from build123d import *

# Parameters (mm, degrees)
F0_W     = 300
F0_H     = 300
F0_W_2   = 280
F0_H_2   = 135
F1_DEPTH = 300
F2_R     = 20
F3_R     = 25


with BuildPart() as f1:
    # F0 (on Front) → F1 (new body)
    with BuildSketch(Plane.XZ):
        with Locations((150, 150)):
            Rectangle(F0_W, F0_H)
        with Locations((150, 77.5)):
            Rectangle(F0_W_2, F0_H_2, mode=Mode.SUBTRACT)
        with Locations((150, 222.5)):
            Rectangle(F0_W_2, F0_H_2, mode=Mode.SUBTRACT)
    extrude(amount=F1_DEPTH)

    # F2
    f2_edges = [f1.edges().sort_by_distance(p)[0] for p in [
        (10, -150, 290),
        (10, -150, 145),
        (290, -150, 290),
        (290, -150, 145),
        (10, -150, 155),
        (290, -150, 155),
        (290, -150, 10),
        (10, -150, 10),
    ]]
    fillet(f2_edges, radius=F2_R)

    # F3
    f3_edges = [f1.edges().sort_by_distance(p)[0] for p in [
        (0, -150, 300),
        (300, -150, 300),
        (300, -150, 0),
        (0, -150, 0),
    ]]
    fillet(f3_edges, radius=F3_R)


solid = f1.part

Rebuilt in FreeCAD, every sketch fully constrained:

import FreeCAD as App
import Part
import Sketcher


def edges_at(feature, points):
    """Names of the edges that pass closest to the given points."""
    edges = feature.Shape.Edges
    near = lambda p: min(range(len(edges)), key=lambda i: edges[i].distToShape(Part.Vertex(*p))[0])
    return sorted({f"Edge{near(p) + 1}" for p in points})

doc = App.newDocument("Part")
body = doc.addObject("PartDesign::Body", "Body")

# Sketch on XZ plane
sketch1 = doc.addObject("Sketcher::SketchObject", "Sketch")
body.addObject(sketch1)
sketch1.AttachmentSupport = (doc.XZ_Plane, [""])
sketch1.MapMode = "FlatFace"
sketch1.addGeometry([
    Part.LineSegment(App.Vector(0, 300, 0), App.Vector(0, 0, 0)),  # 0
    Part.LineSegment(App.Vector(0, 0, 0), App.Vector(300, 0, 0)),  # 1
    Part.LineSegment(App.Vector(300, 0, 0), App.Vector(300, 300, 0)),  # 2
    Part.LineSegment(App.Vector(300, 300, 0), App.Vector(0, 300, 0)),  # 3
    Part.LineSegment(App.Vector(290, 10, 0), App.Vector(10, 10, 0)),  # 4
    Part.LineSegment(App.Vector(10, 10, 0), App.Vector(10, 145, 0)),  # 5
    Part.LineSegment(App.Vector(10, 145, 0), App.Vector(290, 145, 0)),  # 6
    Part.LineSegment(App.Vector(290, 145, 0), App.Vector(290, 10, 0)),  # 7
    Part.LineSegment(App.Vector(290, 155, 0), App.Vector(10, 155, 0)),  # 8
    Part.LineSegment(App.Vector(10, 155, 0), App.Vector(10, 290, 0)),  # 9
    Part.LineSegment(App.Vector(10, 290, 0), App.Vector(290, 290, 0)),  # 10
    Part.LineSegment(App.Vector(290, 290, 0), App.Vector(290, 155, 0)),  # 11
], False)
sketch1.addConstraint([
    Sketcher.Constraint("Coincident", 0, 2, 1, 1),
    Sketcher.Constraint("Coincident", 1, 2, 2, 1),
    Sketcher.Constraint("Coincident", 2, 2, 3, 1),
    Sketcher.Constraint("Coincident", 3, 2, 0, 1),
    Sketcher.Constraint("Coincident", 4, 2, 5, 1),
    Sketcher.Constraint("Coincident", 5, 2, 6, 1),
    Sketcher.Constraint("Coincident", 6, 2, 7, 1),
    Sketcher.Constraint("Coincident", 7, 2, 4, 1),
    Sketcher.Constraint("Coincident", 8, 2, 9, 1),
    Sketcher.Constraint("Coincident", 9, 2, 10, 1),
    Sketcher.Constraint("Coincident", 10, 2, 11, 1),
    Sketcher.Constraint("Coincident", 11, 2, 8, 1),
    Sketcher.Constraint("Vertical", 0),
    Sketcher.Constraint("Horizontal", 1),
    Sketcher.Constraint("Vertical", 2),
    Sketcher.Constraint("Horizontal", 3),
    Sketcher.Constraint("Horizontal", 4),
    Sketcher.Constraint("Vertical", 5),
    Sketcher.Constraint("Horizontal", 6),
    Sketcher.Constraint("Vertical", 7),
    Sketcher.Constraint("Horizontal", 8),
    Sketcher.Constraint("Vertical", 9),
    Sketcher.Constraint("Horizontal", 10),
    Sketcher.Constraint("Vertical", 11),
    Sketcher.Constraint("Coincident", 0, 2, -1, 1),
    Sketcher.Constraint("Vertical", 5, 2, 8, 2),
    Sketcher.Constraint("Vertical", 7, 2, 10, 2),
    Sketcher.Constraint("Equal", 3, 0),
    Sketcher.Constraint("Equal", 7, 9),
    Sketcher.Constraint("DistanceX", 1, 1, 1, 2, 300.0),
    Sketcher.Constraint("DistanceX", 4, 2, 4, 1, 280.0),
    Sketcher.Constraint("DistanceY", 5, 1, 5, 2, 135.0),
    Sketcher.Constraint("DistanceX", -1, 1, 4, 2, 10.0),
    Sketcher.Constraint("DistanceY", -1, 1, 4, 2, 10.0),
    Sketcher.Constraint("DistanceY", -1, 1, 8, 2, 155.0),
])
pad1 = doc.addObject("PartDesign::Pad", "Pad")
body.addObject(pad1)
pad1.Profile = sketch1
pad1.Length = 300
doc.recompute()

fillet = doc.addObject("PartDesign::Fillet", "Fillet")
body.addObject(fillet)
fillet.Base = (pad1, edges_at(pad1, [
    (10, -150, 290),
    (10, -150, 145),
    (290, -150, 290),
    (290, -150, 145),
    (10, -150, 155),
    (290, -150, 155),
    (290, -150, 10),
    (10, -150, 10),
]))
fillet.Radius = 20
doc.recompute()

fillet2 = doc.addObject("PartDesign::Fillet", "Fillet001")
body.addObject(fillet2)
fillet2.Base = (fillet, edges_at(fillet, [
    (0, -150, 300),
    (300, -150, 300),
    (300, -150, 0),
    (0, -150, 0),
]))
fillet2.Radius = 25

doc.recompute()
